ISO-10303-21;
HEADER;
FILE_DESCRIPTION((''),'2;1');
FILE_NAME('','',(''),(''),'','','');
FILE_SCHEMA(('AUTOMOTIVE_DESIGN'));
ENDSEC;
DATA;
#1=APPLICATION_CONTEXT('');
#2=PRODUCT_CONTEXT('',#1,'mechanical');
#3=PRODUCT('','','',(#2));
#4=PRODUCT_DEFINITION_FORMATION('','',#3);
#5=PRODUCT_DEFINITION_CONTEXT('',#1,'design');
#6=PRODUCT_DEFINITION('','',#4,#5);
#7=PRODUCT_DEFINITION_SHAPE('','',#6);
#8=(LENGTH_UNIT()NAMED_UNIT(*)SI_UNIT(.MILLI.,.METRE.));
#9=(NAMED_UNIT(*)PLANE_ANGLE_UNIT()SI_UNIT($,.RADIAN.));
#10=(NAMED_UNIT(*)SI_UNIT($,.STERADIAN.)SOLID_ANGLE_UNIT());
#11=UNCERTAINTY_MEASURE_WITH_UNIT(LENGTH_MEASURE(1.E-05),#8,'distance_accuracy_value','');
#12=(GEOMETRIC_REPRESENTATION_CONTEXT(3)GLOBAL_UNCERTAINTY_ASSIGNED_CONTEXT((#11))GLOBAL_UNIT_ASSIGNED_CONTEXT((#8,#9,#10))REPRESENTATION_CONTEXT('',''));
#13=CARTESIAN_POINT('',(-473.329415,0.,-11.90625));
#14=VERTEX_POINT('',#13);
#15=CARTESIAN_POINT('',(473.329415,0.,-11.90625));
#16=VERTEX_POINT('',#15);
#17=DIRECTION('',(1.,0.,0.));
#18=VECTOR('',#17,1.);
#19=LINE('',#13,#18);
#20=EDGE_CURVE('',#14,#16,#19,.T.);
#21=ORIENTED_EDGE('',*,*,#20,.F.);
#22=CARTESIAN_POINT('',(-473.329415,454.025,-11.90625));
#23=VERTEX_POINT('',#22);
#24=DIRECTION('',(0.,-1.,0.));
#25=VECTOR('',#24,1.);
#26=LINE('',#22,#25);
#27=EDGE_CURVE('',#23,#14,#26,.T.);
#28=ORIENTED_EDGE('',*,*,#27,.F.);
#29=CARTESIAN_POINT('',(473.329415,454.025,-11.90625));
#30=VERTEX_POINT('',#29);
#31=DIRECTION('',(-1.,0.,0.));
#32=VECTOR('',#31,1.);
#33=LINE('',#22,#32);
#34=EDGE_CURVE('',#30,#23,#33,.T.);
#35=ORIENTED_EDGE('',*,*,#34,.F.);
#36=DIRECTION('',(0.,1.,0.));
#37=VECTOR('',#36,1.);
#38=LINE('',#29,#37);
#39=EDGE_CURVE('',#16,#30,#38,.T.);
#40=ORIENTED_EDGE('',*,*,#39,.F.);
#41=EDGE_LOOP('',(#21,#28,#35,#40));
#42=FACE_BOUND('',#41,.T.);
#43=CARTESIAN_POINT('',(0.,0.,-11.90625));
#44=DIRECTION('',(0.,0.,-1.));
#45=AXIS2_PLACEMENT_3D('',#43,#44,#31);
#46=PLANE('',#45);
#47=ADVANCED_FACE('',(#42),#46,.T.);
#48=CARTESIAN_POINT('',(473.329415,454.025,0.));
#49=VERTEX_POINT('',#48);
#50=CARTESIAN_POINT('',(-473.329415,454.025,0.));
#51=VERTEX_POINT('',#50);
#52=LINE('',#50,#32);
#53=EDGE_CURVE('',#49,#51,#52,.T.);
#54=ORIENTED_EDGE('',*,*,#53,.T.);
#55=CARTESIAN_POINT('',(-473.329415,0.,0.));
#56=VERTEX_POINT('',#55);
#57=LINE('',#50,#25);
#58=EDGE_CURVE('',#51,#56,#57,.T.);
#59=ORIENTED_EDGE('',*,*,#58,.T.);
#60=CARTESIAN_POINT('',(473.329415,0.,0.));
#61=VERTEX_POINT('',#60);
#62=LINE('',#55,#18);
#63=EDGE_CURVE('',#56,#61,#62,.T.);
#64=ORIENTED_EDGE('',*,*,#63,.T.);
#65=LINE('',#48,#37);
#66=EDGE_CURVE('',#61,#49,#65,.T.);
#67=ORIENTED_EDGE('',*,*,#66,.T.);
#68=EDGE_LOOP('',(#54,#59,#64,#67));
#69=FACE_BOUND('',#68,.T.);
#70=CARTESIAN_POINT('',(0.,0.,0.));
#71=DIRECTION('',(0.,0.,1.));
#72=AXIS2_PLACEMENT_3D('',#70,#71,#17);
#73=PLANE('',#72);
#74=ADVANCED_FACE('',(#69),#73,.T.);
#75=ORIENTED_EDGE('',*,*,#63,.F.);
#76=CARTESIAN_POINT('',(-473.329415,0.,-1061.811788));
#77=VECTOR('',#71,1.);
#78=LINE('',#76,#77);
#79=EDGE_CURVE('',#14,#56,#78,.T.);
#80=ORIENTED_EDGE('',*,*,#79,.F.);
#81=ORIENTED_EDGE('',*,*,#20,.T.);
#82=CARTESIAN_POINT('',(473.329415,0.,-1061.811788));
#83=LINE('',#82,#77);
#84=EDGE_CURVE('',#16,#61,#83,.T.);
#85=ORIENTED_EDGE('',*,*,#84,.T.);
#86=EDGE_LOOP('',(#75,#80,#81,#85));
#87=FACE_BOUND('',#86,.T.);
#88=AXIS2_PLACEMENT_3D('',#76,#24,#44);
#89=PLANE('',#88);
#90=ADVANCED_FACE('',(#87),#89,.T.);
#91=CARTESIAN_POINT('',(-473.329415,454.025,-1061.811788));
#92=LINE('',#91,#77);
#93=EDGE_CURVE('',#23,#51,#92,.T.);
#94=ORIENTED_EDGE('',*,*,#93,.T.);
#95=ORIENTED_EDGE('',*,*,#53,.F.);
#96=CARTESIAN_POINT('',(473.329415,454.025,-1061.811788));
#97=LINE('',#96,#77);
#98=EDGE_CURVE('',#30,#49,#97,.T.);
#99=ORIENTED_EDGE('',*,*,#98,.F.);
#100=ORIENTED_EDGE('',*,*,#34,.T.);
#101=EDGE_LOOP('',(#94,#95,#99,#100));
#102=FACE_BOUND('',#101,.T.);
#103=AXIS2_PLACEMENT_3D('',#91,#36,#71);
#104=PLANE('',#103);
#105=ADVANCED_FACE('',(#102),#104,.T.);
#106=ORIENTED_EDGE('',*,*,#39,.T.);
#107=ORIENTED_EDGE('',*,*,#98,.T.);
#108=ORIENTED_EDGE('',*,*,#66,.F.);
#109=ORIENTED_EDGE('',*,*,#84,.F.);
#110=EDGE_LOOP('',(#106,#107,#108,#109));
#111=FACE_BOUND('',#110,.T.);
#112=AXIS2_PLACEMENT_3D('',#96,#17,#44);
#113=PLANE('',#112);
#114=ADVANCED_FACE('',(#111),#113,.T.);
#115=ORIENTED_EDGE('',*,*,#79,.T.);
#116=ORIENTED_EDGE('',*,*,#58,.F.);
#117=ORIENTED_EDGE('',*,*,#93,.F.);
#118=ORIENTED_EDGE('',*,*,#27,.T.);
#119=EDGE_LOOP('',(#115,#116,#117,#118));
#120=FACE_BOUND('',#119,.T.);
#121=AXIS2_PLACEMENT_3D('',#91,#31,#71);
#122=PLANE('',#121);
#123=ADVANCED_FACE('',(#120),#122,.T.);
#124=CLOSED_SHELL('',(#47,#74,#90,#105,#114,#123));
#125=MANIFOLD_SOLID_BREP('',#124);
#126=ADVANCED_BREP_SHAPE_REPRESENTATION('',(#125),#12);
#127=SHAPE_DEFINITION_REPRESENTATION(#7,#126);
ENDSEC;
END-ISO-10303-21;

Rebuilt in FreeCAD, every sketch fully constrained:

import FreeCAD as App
import Part
import Sketcher

V = App.Vector
Q = App.Units.Quantity


def add_polygon(sketch, points):
    """Adds a closed chain of lines whose ends are joined by coincident constraints."""
    first, n = sketch.GeometryCount, len(points)
    for a, b in zip(points, points[1:] + points[:1]):
        sketch.addGeometry(Part.LineSegment(App.Vector(*a, 0), App.Vector(*b, 0)), False)
    for i in range(n):
        sketch.addConstraint(Sketcher.Constraint("Coincident", first + i, 2, first + (i + 1) % n, 1))

doc = App.newDocument("Part")
params = doc.addObject("Spreadsheet::Sheet", "Params")
for row, (alias, value) in enumerate([
    ("sketch1_height", "17.875 in"),
    ("pad1_length", "0.46875 in"),
], start=1):
    params.set(f"A{row}", alias)
    params.set(f"B{row}", "=" + value)
    params.setAlias(f"B{row}", alias)

body = doc.addObject("PartDesign::Body", "Body")

# Sketch on XY plane
sketch1 = body.newObject("Sketcher::SketchObject", "Sketch")
sketch1.AttachmentSupport = (doc.getObject("XY_Plane"), [""])
sketch1.MapMode = "FlatFace"
add_polygon(sketch1, [(-473.329415, 454.025), (-473.329415, 0), (473.329415, 0), (473.329415, 454.025)])  # lines 0-3
sketch1.addConstraint([
    Sketcher.Constraint("Vertical", 0),
    Sketcher.Constraint("Horizontal", 1),
    Sketcher.Constraint("Vertical", 2),
    Sketcher.Constraint("Horizontal", 3),
    Sketcher.Constraint("Symmetric", 0, 2, 1, 2, -1, 1),
    Sketcher.Constraint("DistanceY", 0, 2, 0, 1, Q("17.875 in")),
    Sketcher.Constraint("DistanceX", 1, 1, 1, 2, 946.658829),
])
sketch1.setExpression("Constraints[9]", "Params.sketch1_height")
pad1 = body.newObject("PartDesign::Pad", "Pad")
pad1.Profile = sketch1
pad1.setExpression("Length", "Params.pad1_length")
pad1.Reversed = True

doc.recompute()
